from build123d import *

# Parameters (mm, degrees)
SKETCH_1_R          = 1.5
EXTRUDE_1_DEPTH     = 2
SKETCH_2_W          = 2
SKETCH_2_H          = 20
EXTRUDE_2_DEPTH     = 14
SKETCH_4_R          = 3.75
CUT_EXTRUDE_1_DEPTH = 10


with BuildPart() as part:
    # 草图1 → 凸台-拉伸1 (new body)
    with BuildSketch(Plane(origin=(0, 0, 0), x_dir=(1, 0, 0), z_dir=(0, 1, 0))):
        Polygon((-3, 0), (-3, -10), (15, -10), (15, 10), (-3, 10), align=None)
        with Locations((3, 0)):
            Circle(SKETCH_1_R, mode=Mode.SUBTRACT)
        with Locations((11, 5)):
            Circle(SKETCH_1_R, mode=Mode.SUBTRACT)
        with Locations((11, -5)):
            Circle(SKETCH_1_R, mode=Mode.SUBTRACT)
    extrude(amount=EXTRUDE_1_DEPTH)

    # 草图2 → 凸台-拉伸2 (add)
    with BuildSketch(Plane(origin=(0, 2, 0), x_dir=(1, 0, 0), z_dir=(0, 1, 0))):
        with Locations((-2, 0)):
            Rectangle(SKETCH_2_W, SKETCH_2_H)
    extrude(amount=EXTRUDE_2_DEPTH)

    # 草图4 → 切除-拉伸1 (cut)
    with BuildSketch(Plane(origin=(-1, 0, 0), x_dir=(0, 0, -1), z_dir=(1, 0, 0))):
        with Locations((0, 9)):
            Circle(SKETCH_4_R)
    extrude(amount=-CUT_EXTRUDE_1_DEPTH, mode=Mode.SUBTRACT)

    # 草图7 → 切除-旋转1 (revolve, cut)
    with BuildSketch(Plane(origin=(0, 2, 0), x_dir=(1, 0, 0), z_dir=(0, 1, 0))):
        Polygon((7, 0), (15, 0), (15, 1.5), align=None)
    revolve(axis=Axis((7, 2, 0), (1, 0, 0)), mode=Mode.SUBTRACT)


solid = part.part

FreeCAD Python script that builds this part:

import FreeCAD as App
import Part
import Sketcher

doc = App.newDocument("Part")
body = doc.addObject("PartDesign::Body", "Body")

# Sketch on XZ plane
sketch1 = body.newObject("Sketcher::SketchObject", "Sketch")
sketch1.AttachmentSupport = (doc.getObject("XZ_Plane"), [""])
sketch1.MapMode = "FlatFace"
sketch1.addGeometry([
    Part.LineSegment(App.Vector(-3, 10, 0), App.Vector(15, 10, 0)),  # 0
    Part.LineSegment(App.Vector(15, 10, 0), App.Vector(15, -10, 0)),  # 1
    Part.LineSegment(App.Vector(15, -10, 0), App.Vector(-3, -10, 0)),  # 2
    Part.LineSegment(App.Vector(-3, -10, 0), App.Vector(-3, 10, 0)),  # 3
    Part.Circle(App.Vector(11, 5, 0), App.Vector(0, 0, 1), 1.5),  # 4
    Part.Circle(App.Vector(3, 0, 0), App.Vector(0, 0, 1), 1.5),  # 5
    Part.Circle(App.Vector(11, -5, 0), App.Vector(0, 0, 1), 1.5),  # 6
], False)
sketch1.addConstraint([
    Sketcher.Constraint("Coincident", 0, 2, 1, 1),
    Sketcher.Constraint("Coincident", 1, 2, 2, 1),
    Sketcher.Constraint("Coincident", 2, 2, 3, 1),
    Sketcher.Constraint("Coincident", 3, 2, 0, 1),
    Sketcher.Constraint("Horizontal", 0),
    Sketcher.Constraint("Vertical", 1),
    Sketcher.Constraint("Horizontal", 2),
    Sketcher.Constraint("Vertical", 3),
    Sketcher.Constraint("Equal", 4, 5),
    Sketcher.Constraint("Equal", 5, 6),
    Sketcher.Constraint("Symmetric", 4, 3, 6, 3, -1),
    Sketcher.Constraint("PointOnObject", 5, 3, -1),
    Sketcher.Constraint("Diameter", 4, 3.0),
    Sketcher.Constraint("DistanceX", 0, 1, 0, 2, 18.0),
    Sketcher.Constraint("DistanceY", 1, 2, 1, 1, 20.0),
    Sketcher.Constraint("DistanceX", -1, 1, 4, 3, 11.0),
    Sketcher.Constraint("DistanceY", -1, 1, 4, 3, 5.0),
    Sketcher.Constraint("DistanceX", -1, 1, 5, 3, 3.0),
    Sketcher.Constraint("DistanceX", -1, 1, 0, 2, 15.0),
    Sketcher.Constraint("DistanceY", -1, 1, 0, 2, 10.0),
])
pad1 = body.newObject("PartDesign::Pad", "Pad")
pad1.Profile = sketch1
pad1.Length = 2
pad1.Reversed = True

# Sketch on XZ plane
sketch2 = body.newObject("Sketcher::SketchObject", "Sketch001")
sketch2.AttachmentSupport = (doc.getObject("XZ_Plane"), [""])
sketch2.MapMode = "FlatFace"
sketch2.AttachmentOffset = App.Placement(App.Vector(0, 0, -2), App.Rotation())
sketch2.addGeometry([
    Part.LineSegment(App.Vector(-3, -10, 0), App.Vector(-3, 10, 0)),
    Part.LineSegment(App.Vector(-3, 10, 0), App.Vector(-1, 10, 0)),
    Part.LineSegment(App.Vector(-1, 10, 0), App.Vector(-1, -10, 0)),
    Part.LineSegment(App.Vector(-1, -10, 0), App.Vector(-3, -10, 0)),
], False)
sketch2.addConstraint([
    Sketcher.Constraint("Coincident", 0, 2, 1, 1),
    Sketcher.Constraint("Coincident", 1, 2, 2, 1),
    Sketcher.Constraint("Coincident", 2, 2, 3, 1),
    Sketcher.Constraint("Coincident", 3, 2, 0, 1),
    Sketcher.Constraint("Vertical", 0),
    Sketcher.Constraint("Horizontal", 1),
    Sketcher.Constraint("Vertical", 2),
    Sketcher.Constraint("Horizontal", 3),
    Sketcher.Constraint("DistanceX", 1, 1, 1, 2, 2.0),
    Sketcher.Constraint("DistanceY", 0, 1, 0, 2, 20.0),
    Sketcher.Constraint("DistanceX", 0, 2, -1, 1, 3.0),
    Sketcher.Constraint("DistanceY", -1, 1, 0, 2, 10.0),
])
pad2 = body.newObject("PartDesign::Pad", "Pad001")
pad2.Profile = sketch2
pad2.Length = 14
pad2.Reversed = True

# Sketch on YZ plane
sketch3 = body.newObject("Sketcher::SketchObject", "Sketch002")
sketch3.AttachmentSupport = (doc.getObject("YZ_Plane"), [""])
sketch3.MapMode = "FlatFace"
sketch3.AttachmentOffset = App.Placement(App.Vector(0, 0, -1), App.Rotation())
sketch3.addGeometry(Part.Circle(App.Vector(9, 0, 0), App.Vector(0, 0, 1), 3.8), False)
sketch3.addConstraint([
    Sketcher.Constraint("PointOnObject", 0, 3, -1),
    Sketcher.Constraint("Diameter", 0, 7.5),
    Sketcher.Constraint("DistanceX", -1, 1, 0, 3, 9.0),
])
pocket1 = body.newObject("PartDesign::Pocket", "Pocket")
pocket1.Profile = sketch3
pocket1.Length = 10

# Sketch on XZ plane
sketch4 = body.newObject("Sketcher::SketchObject", "Sketch003")
sketch4.AttachmentSupport = (doc.getObject("XZ_Plane"), [""])
sketch4.MapMode = "FlatFace"
sketch4.AttachmentOffset = App.Placement(App.Vector(0, 0, -2), App.Rotation())
sketch4.addGeometry([
    Part.LineSegment(App.Vector(7, 0, 0), App.Vector(15, 0, 0)),
    Part.LineSegment(App.Vector(15, 0, 0), App.Vector(15, -1.5, 0)),
    Part.LineSegment(App.Vector(15, -1.5, 0), App.Vector(7, 0, 0)),
], False)
sketch4.addConstraint([
    Sketcher.Constraint("Coincident", 0, 2, 1, 1),
    Sketcher.Constraint("Coincident", 1, 2, 2, 1),
    Sketcher.Constraint("Coincident", 2, 2, 0, 1),
    Sketcher.Constraint("Horizontal", 0),
    Sketcher.Constraint("Vertical", 1),
    Sketcher.Constraint("PointOnObject", 0, 2, -1),
    Sketcher.Constraint("DistanceX", 0, 1, 0, 2, 8.0),
    Sketcher.Constraint("DistanceY", 1, 2, 1, 1, 1.5),
    Sketcher.Constraint("DistanceX", -1, 1, 0, 2, 15.0),
])
groove = body.newObject("PartDesign::Groove", "Groove")
groove.Profile = sketch4
groove.ReferenceAxis = (sketch4, ["H_Axis"])
groove.Angle = 360

doc.recompute()
